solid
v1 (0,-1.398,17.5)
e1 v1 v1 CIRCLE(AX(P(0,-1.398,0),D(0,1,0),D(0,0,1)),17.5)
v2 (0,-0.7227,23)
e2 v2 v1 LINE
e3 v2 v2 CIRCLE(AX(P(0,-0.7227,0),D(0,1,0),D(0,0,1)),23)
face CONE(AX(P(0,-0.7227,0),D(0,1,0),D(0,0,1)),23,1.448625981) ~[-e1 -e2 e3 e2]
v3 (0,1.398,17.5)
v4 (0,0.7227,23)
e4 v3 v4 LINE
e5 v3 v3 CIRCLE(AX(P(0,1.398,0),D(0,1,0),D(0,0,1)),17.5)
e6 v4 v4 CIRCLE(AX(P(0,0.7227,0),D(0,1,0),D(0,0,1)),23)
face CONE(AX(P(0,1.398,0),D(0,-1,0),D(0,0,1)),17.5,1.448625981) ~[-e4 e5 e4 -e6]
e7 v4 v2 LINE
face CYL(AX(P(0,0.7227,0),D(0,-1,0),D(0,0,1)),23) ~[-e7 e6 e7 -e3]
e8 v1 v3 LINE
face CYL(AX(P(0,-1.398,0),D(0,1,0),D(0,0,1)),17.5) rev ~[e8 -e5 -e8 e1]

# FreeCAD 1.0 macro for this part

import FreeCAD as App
import Part
import Sketcher
from FreeCAD import Vector
Q = App.Units.Quantity


def add_polygon(sketch, points):
    """Adds a closed chain of lines whose ends are joined by coincident constraints."""
    first, n = sketch.GeometryCount, len(points)
    for a, b in zip(points, points[1:] + points[:1]):
        sketch.addGeometry(Part.LineSegment(App.Vector(*a, 0), App.Vector(*b, 0)), False)
    for i in range(n):
        sketch.addConstraint(Sketcher.Constraint("Coincident", first + i, 2, first + (i + 1) % n, 1))

doc = App.newDocument("Part")
body = doc.addObject("PartDesign::Body", "Body")

sketch1 = body.newObject("Sketcher::SketchObject", "Sketch")
sketch1.AttachmentSupport = (doc.getObject("YZ_Plane"), [""])
sketch1.MapMode = "FlatFace"
add_polygon(sketch1, [(-0.7, 23), (-1.4, 17.5), (1.4, 17.5), (0.7, 23)])
sketch1.addConstraint(Sketcher.Constraint("Horizontal", 1))
sketch1.addConstraint(Sketcher.Constraint("Horizontal", 3))
sketch1.addConstraint(Sketcher.Constraint("Equal", 0, 2))
sketch1.addConstraint(Sketcher.Constraint("Angle", 0, Q("-96.9998 deg")))
sketch1.addConstraint(Sketcher.Constraint("DistanceY", -1, 1, 2, 2, 23.0))
sketch1.addConstraint(Sketcher.Constraint("DistanceY", -1, 1, 0, 2, 17.5))
sketch1.addConstraint(Sketcher.Constraint("DistanceX", 1, 1, 1, 2, 2.796))
sketch1.addConstraint(Sketcher.Constraint("DistanceX", 0, 2, -1, 1, 1.398))
revolution = body.newObject("PartDesign::Revolution", "Revolution")
revolution.Profile = sketch1
revolution.ReferenceAxis = (sketch1, ["H_Axis"])
revolution.Angle = 360

doc.recompute()
